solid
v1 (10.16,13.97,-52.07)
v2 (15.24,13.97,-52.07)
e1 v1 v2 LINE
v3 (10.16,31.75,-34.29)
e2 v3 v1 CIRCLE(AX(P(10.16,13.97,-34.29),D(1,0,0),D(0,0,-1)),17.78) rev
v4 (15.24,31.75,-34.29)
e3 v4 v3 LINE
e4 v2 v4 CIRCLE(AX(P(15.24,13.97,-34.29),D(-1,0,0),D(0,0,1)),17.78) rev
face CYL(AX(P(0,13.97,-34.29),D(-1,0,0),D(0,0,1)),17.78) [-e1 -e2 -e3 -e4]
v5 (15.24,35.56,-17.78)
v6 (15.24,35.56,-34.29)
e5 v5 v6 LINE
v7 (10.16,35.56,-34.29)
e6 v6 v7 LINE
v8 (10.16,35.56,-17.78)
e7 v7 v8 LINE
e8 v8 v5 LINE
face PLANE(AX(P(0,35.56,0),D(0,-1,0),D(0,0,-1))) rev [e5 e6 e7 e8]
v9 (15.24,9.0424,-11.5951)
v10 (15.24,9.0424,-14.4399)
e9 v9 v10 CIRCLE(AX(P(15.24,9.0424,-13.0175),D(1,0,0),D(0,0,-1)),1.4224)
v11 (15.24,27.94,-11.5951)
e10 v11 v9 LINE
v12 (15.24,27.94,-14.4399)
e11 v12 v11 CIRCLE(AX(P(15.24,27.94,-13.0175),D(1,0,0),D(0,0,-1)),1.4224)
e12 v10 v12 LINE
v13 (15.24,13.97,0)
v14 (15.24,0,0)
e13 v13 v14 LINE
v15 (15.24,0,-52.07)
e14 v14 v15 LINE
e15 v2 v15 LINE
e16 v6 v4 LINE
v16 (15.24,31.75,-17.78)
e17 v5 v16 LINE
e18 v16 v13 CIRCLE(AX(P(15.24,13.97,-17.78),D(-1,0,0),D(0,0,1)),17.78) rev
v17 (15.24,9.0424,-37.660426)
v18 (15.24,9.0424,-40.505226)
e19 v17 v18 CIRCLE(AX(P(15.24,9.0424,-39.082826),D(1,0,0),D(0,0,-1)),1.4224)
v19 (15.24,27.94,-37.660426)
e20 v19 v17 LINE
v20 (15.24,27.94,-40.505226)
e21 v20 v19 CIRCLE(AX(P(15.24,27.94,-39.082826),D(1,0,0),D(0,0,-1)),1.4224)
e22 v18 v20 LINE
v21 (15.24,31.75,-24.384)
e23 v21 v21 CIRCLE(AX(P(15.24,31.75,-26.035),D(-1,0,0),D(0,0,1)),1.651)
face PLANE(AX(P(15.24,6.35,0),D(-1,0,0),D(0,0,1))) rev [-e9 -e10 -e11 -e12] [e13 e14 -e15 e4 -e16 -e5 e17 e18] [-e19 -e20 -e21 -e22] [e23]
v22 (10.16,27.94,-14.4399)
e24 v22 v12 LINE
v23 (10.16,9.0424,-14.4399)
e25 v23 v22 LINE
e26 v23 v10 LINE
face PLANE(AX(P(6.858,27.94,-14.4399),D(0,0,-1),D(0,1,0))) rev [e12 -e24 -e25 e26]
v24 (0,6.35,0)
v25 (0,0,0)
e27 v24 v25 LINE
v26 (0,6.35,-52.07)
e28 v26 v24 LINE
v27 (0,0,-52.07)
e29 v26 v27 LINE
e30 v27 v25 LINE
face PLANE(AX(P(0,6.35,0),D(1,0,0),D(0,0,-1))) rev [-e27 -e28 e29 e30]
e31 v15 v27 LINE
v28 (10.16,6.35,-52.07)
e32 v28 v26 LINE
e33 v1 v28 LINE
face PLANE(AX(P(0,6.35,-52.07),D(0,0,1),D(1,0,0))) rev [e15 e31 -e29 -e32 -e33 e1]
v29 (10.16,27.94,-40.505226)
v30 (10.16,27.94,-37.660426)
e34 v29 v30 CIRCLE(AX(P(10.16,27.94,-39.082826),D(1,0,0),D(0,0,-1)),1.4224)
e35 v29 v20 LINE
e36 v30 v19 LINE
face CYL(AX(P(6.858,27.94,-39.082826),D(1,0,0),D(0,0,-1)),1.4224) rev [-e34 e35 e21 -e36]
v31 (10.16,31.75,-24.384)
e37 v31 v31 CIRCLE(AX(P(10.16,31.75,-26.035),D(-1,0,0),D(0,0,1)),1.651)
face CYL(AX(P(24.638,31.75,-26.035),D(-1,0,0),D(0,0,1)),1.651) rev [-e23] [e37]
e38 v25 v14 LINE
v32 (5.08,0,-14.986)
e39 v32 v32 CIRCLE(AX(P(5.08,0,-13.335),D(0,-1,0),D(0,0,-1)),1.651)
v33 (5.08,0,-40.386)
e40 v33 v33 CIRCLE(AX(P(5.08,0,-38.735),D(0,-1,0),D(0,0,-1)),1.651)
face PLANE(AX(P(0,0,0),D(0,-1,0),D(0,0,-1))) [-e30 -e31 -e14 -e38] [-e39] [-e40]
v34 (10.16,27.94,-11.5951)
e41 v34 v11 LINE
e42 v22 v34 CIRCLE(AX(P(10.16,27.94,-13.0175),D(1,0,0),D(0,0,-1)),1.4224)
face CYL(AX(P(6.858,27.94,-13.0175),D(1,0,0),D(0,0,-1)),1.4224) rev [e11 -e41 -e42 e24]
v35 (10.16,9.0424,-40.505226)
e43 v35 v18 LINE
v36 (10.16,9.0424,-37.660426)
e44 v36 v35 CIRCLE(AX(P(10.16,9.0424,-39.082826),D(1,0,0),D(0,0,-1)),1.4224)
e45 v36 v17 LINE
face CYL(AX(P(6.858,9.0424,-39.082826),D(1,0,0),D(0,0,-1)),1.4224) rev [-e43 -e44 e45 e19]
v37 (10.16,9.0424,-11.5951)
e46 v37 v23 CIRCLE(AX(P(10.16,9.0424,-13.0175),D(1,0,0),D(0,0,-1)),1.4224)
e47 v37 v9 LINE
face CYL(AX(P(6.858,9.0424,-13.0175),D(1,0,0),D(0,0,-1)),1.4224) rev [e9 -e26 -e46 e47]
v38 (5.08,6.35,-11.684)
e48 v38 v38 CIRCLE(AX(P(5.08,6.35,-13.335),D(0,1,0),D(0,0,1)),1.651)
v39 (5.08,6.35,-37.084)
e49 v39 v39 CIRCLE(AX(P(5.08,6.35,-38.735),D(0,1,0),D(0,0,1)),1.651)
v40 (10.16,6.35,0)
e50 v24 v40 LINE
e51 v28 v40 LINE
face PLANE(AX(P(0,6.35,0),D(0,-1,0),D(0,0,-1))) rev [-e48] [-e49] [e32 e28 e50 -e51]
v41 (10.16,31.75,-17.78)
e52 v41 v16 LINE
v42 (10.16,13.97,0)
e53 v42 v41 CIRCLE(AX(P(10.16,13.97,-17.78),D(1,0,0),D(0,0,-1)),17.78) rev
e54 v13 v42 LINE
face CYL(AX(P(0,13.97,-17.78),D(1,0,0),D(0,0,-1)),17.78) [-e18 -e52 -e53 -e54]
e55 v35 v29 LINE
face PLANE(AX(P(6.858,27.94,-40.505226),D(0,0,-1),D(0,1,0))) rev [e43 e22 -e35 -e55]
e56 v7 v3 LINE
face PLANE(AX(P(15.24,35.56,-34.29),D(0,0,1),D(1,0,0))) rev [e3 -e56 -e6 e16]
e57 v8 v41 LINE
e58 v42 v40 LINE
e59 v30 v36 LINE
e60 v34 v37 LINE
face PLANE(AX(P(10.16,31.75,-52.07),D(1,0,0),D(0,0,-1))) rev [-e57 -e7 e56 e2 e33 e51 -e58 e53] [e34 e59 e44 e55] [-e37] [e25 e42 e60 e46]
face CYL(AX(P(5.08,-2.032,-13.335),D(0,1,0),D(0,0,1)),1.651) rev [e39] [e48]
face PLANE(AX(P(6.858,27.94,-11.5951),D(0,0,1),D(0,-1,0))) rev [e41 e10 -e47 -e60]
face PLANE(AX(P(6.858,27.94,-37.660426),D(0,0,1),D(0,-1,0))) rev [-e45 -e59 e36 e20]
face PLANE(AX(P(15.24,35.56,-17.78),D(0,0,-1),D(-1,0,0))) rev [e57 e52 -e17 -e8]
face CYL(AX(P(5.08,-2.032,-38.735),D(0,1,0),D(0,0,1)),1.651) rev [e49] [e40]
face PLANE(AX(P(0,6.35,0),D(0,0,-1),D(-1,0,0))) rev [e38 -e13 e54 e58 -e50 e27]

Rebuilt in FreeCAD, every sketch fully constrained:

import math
import FreeCAD as App
import Part
import Sketcher

V = App.Vector
Q = App.Units.Quantity


def edges_at(feature, points):
    """Names of the edges that pass closest to the given points."""
    edges = feature.Shape.Edges
    near = lambda p: min(range(len(edges)), key=lambda i: edges[i].distToShape(Part.Vertex(*p))[0])
    return sorted({f"Edge{near(p) + 1}" for p in points})

doc = App.newDocument("Part")
body = doc.addObject("PartDesign::Body", "Body")

sketch1 = body.newObject("Sketcher::SketchObject", "Sketch")
sketch1.AttachmentSupport = (doc.getObject("XZ_Plane"), [""])
sketch1.MapMode = "FlatFace"
sketch1.addGeometry(Part.LineSegment(V(0, -52, 0), V(0, 0, 0)), False)
sketch1.addGeometry(Part.LineSegment(V(0, 0, 0), V(15, 0, 0)), False)
sketch1.addGeometry(Part.LineSegment(V(15, 0, 0), V(15, -52, 0)), False)
sketch1.addGeometry(Part.LineSegment(V(15, -52, 0), V(0, -52, 0)), False)
sketch1.addConstraint(Sketcher.Constraint("Coincident", 0, 2, 1, 1))
sketch1.addConstraint(Sketcher.Constraint("Coincident", 1, 2, 2, 1))
sketch1.addConstraint(Sketcher.Constraint("Coincident", 2, 2, 3, 1))
sketch1.addConstraint(Sketcher.Constraint("Coincident", 3, 2, 0, 1))
sketch1.addConstraint(Sketcher.Constraint("Vertical", 0))
sketch1.addConstraint(Sketcher.Constraint("Horizontal", 1))
sketch1.addConstraint(Sketcher.Constraint("Vertical", 2))
sketch1.addConstraint(Sketcher.Constraint("Horizontal", 3))
sketch1.addConstraint(Sketcher.Constraint("Coincident", 0, 2, -1, 1))
sketch1.addConstraint(Sketcher.Constraint("DistanceX", 1, 1, 1, 2, Q("0.6 in")))
sketch1.addConstraint(Sketcher.Constraint("DistanceY", 0, 1, 0, 2, Q("2.05 in")))
pad1 = body.newObject("PartDesign::Pad", "Pad")
pad1.Profile = sketch1
pad1.Length = Q("0.25 in")
pad1.Reversed = True

sketch2 = body.newObject("Sketcher::SketchObject", "Sketch001")
sketch2.AttachmentSupport = (doc.getObject("XZ_Plane"), [""])
sketch2.MapMode = "FlatFace"
sketch2.AttachmentOffset = App.Placement(V(0, 0, -0.25 * 25.4), App.Rotation())
sketch2.addGeometry(Part.LineSegment(V(10, -52, 0), V(10, 0, 0)), False)
sketch2.addGeometry(Part.LineSegment(V(10, 0, 0), V(15, 0, 0)), False)
sketch2.addGeometry(Part.LineSegment(V(15, 0, 0), V(15, -52, 0)), False)
sketch2.addGeometry(Part.LineSegment(V(15, -52, 0), V(10, -52, 0)), False)
sketch2.addConstraint(Sketcher.Constraint("Coincident", 0, 2, 1, 1))
sketch2.addConstraint(Sketcher.Constraint("Coincident", 1, 2, 2, 1))
sketch2.addConstraint(Sketcher.Constraint("Coincident", 2, 2, 3, 1))
sketch2.addConstraint(Sketcher.Constraint("Coincident", 3, 2, 0, 1))
sketch2.addConstraint(Sketcher.Constraint("Vertical", 0))
sketch2.addConstraint(Sketcher.Constraint("Horizontal", 1))
sketch2.addConstraint(Sketcher.Constraint("Vertical", 2))
sketch2.addConstraint(Sketcher.Constraint("Horizontal", 3))
sketch2.addConstraint(Sketcher.Constraint("PointOnObject", 0, 2, -1))
sketch2.addConstraint(Sketcher.Constraint("DistanceX", 1, 1, 1, 2, Q("0.2 in")))
sketch2.addConstraint(Sketcher.Constraint("DistanceY", 0, 1, 0, 2, Q("2.05 in")))
sketch2.addConstraint(Sketcher.Constraint("DistanceX", -1, 1, 0, 2, Q("0.4 in")))
pad2 = body.newObject("PartDesign::Pad", "Pad001")
pad2.Profile = sketch2
pad2.Length = Q("1 in")
pad2.Reversed = True

sketch3 = body.newObject("Sketcher::SketchObject", "Sketch002")
sketch3.AttachmentSupport = (doc.getObject("YZ_Plane"), [""])
sketch3.MapMode = "FlatFace"
sketch3.AttachmentOffset = App.Placement(V(0, 0, 0.6 * 25.4), App.Rotation())
sketch3.addGeometry(Part.LineSegment(V(9, -14.4, 0), V(27.9, -14.4, 0)), False)
sketch3.addGeometry(Part.ArcOfCircle(Part.Circle(V(27.9, -13, 0), V(0, 0, 1), 1.4), math.radians(-90), math.radians(90)), False)
sketch3.addGeometry(Part.LineSegment(V(27.9, -11.6, 0), V(9, -11.6, 0)), False)
sketch3.addGeometry(Part.ArcOfCircle(Part.Circle(V(9, -13, 0), V(0, 0, 1), 1.4), math.radians(90), math.radians(270)), False)
sketch3.addGeometry(Part.LineSegment(V(9, -40.5, 0), V(27.9, -40.5, 0)), False)
sketch3.addGeometry(Part.ArcOfCircle(Part.Circle(V(27.9, -39.1, 0), V(0, 0, 1), 1.4), math.radians(-90), math.radians(90)), False)
sketch3.addGeometry(Part.LineSegment(V(27.9, -37.7, 0), V(9, -37.7, 0)), False)
sketch3.addGeometry(Part.ArcOfCircle(Part.Circle(V(9, -39.1, 0), V(0, 0, 1), 1.4), math.radians(90), math.radians(270)), False)
sketch3.addConstraint(Sketcher.Constraint("Tangent", 0, 2, 1, 1))
sketch3.addConstraint(Sketcher.Constraint("Tangent", 1, 2, 2, 1))
sketch3.addConstraint(Sketcher.Constraint("Tangent", 2, 2, 3, 1))
sketch3.addConstraint(Sketcher.Constraint("Tangent", 3, 2, 0, 1))
sketch3.addConstraint(Sketcher.Constraint("Tangent", 4, 2, 5, 1))
sketch3.addConstraint(Sketcher.Constraint("Tangent", 5, 2, 6, 1))
sketch3.addConstraint(Sketcher.Constraint("Tangent", 6, 2, 7, 1))
sketch3.addConstraint(Sketcher.Constraint("Tangent", 7, 2, 4, 1))
sketch3.addConstraint(Sketcher.Constraint("Horizontal", 0))
sketch3.addConstraint(Sketcher.Constraint("Horizontal", 2))
sketch3.addConstraint(Sketcher.Constraint("Horizontal", 4))
sketch3.addConstraint(Sketcher.Constraint("Horizontal", 6))
sketch3.addConstraint(Sketcher.Constraint("Equal", 3, 5))
sketch3.addConstraint(Sketcher.Constraint("Vertical", 1, 3, 5, 3))
sketch3.addConstraint(Sketcher.Constraint("Vertical", 3, 3, 7, 3))
sketch3.addConstraint(Sketcher.Constraint("Radius", 1, Q("0.056 in")))
sketch3.addConstraint(Sketcher.Constraint("DistanceX", -1, 1, 1, 3, Q("1.1 in")))
sketch3.addConstraint(Sketcher.Constraint("DistanceX", 0, 1, 0, 2, Q("0.744 in")))
sketch3.addConstraint(Sketcher.Constraint("DistanceY", 1, 3, -1, 1, Q("0.5125 in")))
sketch3.addConstraint(Sketcher.Constraint("DistanceY", 5, 3, -1, 1, Q("39.082826 mm")))
pocket1 = body.newObject("PartDesign::Pocket", "Pocket")
pocket1.Profile = sketch3
pocket1.Length = Q("0.33 in")

sketch4 = body.newObject("Sketcher::SketchObject", "Sketch003")
sketch4.AttachmentSupport = (doc.getObject("XZ_Plane"), [""])
sketch4.MapMode = "FlatFace"
sketch4.AttachmentOffset = App.Placement(V(0, 0, -0.25 * 25.4), App.Rotation())
sketch4.addGeometry(Part.Circle(V(5.1, -38.7, 0), V(0, 0, 1), 1.7), False)
sketch4.addGeometry(Part.Circle(V(5.1, -13.3, 0), V(0, 0, 1), 1.7), False)
sketch4.addConstraint(Sketcher.Constraint("Equal", 0, 1))
sketch4.addConstraint(Sketcher.Constraint("Vertical", 0, 3, 1, 3))
sketch4.addConstraint(Sketcher.Constraint("Diameter", 0, Q("0.13 in")))
sketch4.addConstraint(Sketcher.Constraint("DistanceY", 0, 3, 1, 3, Q("1 in")))
sketch4.addConstraint(Sketcher.Constraint("DistanceX", -1, 1, 0, 3, Q("0.2 in")))
sketch4.addConstraint(Sketcher.Constraint("DistanceY", 0, 3, -1, 1, Q("1.525 in")))
pocket2 = body.newObject("PartDesign::Pocket", "Pocket001")
pocket2.Profile = sketch4
pocket2.Length = Q("0.33 in")
pocket2.Reversed = True
doc.recompute()

fillet = body.newObject("PartDesign::Fillet", "Fillet")
fillet.Base = (pocket2, edges_at(pocket2, [(12.7, 31.75, -52.07), (12.7, 31.75, 0)]))
fillet.Radius = Q("0.7 in")

sketch5 = body.newObject("Sketcher::SketchObject", "Sketch004")
sketch5.AttachmentSupport = (doc.getObject("XZ_Plane"), [""])
sketch5.MapMode = "FlatFace"
sketch5.AttachmentOffset = App.Placement(V(0, 0, -1.25 * 25.4), App.Rotation())
sketch5.addGeometry(Part.LineSegment(V(10, -34, 0), V(10, -18, 0)), False)
sketch5.addGeometry(Part.LineSegment(V(10, -18, 0), V(15, -18, 0)), False)
sketch5.addGeometry(Part.LineSegment(V(15, -18, 0), V(15, -34, 0)), False)
sketch5.addGeometry(Part.LineSegment(V(15, -34, 0), V(10, -34, 0)), False)
sketch5.addConstraint(Sketcher.Constraint("Coincident", 0, 2, 1, 1))
sketch5.addConstraint(Sketcher.Constraint("Coincident", 1, 2, 2, 1))
sketch5.addConstraint(Sketcher.Constraint("Coincident", 2, 2, 3, 1))
sketch5.addConstraint(Sketcher.Constraint("Coincident", 3, 2, 0, 1))
sketch5.addConstraint(Sketcher.Constraint("Vertical", 0))
sketch5.addConstraint(Sketcher.Constraint("Horizontal", 1))
sketch5.addConstraint(Sketcher.Constraint("Vertical", 2))
sketch5.addConstraint(Sketcher.Constraint("Horizontal", 3))
sketch5.addConstraint(Sketcher.Constraint("DistanceX", 1, 1, 1, 2, Q("0.2 in")))
sketch5.addConstraint(Sketcher.Constraint("DistanceY", 0, 1, 0, 2, Q("0.65 in")))
sketch5.addConstraint(Sketcher.Constraint("DistanceX", -1, 1, 0, 2, Q("0.4 in")))
sketch5.addConstraint(Sketcher.Constraint("DistanceY", 0, 2, -1, 1, Q("0.7 in")))
pad3 = body.newObject("PartDesign::Pad", "Pad002")
pad3.Profile = sketch5
pad3.Length = Q("0.15 in")
pad3.Reversed = True

sketch6 = body.newObject("Sketcher::SketchObject", "Sketch005")
sketch6.AttachmentSupport = (doc.getObject("YZ_Plane"), [""])
sketch6.MapMode = "FlatFace"
sketch6.AttachmentOffset = App.Placement(V(0, 0, 0.4 * 25.4), App.Rotation())
sketch6.addGeometry(Part.Circle(V(31.8, -26, 0), V(0, 0, 1), 1.7), False)
sketch6.addConstraint(Sketcher.Constraint("Diameter", 0, Q("0.13 in")))
sketch6.addConstraint(Sketcher.Constraint("DistanceX", -1, 1, 0, 3, Q("1.25 in")))
sketch6.addConstraint(Sketcher.Constraint("DistanceY", 0, 3, -1, 1, Q("1.025 in")))
pocket3 = body.newObject("PartDesign::Pocket", "Pocket002")
pocket3.Profile = sketch6
pocket3.Length = Q("0.57 in")
pocket3.Reversed = True

doc.recompute()
